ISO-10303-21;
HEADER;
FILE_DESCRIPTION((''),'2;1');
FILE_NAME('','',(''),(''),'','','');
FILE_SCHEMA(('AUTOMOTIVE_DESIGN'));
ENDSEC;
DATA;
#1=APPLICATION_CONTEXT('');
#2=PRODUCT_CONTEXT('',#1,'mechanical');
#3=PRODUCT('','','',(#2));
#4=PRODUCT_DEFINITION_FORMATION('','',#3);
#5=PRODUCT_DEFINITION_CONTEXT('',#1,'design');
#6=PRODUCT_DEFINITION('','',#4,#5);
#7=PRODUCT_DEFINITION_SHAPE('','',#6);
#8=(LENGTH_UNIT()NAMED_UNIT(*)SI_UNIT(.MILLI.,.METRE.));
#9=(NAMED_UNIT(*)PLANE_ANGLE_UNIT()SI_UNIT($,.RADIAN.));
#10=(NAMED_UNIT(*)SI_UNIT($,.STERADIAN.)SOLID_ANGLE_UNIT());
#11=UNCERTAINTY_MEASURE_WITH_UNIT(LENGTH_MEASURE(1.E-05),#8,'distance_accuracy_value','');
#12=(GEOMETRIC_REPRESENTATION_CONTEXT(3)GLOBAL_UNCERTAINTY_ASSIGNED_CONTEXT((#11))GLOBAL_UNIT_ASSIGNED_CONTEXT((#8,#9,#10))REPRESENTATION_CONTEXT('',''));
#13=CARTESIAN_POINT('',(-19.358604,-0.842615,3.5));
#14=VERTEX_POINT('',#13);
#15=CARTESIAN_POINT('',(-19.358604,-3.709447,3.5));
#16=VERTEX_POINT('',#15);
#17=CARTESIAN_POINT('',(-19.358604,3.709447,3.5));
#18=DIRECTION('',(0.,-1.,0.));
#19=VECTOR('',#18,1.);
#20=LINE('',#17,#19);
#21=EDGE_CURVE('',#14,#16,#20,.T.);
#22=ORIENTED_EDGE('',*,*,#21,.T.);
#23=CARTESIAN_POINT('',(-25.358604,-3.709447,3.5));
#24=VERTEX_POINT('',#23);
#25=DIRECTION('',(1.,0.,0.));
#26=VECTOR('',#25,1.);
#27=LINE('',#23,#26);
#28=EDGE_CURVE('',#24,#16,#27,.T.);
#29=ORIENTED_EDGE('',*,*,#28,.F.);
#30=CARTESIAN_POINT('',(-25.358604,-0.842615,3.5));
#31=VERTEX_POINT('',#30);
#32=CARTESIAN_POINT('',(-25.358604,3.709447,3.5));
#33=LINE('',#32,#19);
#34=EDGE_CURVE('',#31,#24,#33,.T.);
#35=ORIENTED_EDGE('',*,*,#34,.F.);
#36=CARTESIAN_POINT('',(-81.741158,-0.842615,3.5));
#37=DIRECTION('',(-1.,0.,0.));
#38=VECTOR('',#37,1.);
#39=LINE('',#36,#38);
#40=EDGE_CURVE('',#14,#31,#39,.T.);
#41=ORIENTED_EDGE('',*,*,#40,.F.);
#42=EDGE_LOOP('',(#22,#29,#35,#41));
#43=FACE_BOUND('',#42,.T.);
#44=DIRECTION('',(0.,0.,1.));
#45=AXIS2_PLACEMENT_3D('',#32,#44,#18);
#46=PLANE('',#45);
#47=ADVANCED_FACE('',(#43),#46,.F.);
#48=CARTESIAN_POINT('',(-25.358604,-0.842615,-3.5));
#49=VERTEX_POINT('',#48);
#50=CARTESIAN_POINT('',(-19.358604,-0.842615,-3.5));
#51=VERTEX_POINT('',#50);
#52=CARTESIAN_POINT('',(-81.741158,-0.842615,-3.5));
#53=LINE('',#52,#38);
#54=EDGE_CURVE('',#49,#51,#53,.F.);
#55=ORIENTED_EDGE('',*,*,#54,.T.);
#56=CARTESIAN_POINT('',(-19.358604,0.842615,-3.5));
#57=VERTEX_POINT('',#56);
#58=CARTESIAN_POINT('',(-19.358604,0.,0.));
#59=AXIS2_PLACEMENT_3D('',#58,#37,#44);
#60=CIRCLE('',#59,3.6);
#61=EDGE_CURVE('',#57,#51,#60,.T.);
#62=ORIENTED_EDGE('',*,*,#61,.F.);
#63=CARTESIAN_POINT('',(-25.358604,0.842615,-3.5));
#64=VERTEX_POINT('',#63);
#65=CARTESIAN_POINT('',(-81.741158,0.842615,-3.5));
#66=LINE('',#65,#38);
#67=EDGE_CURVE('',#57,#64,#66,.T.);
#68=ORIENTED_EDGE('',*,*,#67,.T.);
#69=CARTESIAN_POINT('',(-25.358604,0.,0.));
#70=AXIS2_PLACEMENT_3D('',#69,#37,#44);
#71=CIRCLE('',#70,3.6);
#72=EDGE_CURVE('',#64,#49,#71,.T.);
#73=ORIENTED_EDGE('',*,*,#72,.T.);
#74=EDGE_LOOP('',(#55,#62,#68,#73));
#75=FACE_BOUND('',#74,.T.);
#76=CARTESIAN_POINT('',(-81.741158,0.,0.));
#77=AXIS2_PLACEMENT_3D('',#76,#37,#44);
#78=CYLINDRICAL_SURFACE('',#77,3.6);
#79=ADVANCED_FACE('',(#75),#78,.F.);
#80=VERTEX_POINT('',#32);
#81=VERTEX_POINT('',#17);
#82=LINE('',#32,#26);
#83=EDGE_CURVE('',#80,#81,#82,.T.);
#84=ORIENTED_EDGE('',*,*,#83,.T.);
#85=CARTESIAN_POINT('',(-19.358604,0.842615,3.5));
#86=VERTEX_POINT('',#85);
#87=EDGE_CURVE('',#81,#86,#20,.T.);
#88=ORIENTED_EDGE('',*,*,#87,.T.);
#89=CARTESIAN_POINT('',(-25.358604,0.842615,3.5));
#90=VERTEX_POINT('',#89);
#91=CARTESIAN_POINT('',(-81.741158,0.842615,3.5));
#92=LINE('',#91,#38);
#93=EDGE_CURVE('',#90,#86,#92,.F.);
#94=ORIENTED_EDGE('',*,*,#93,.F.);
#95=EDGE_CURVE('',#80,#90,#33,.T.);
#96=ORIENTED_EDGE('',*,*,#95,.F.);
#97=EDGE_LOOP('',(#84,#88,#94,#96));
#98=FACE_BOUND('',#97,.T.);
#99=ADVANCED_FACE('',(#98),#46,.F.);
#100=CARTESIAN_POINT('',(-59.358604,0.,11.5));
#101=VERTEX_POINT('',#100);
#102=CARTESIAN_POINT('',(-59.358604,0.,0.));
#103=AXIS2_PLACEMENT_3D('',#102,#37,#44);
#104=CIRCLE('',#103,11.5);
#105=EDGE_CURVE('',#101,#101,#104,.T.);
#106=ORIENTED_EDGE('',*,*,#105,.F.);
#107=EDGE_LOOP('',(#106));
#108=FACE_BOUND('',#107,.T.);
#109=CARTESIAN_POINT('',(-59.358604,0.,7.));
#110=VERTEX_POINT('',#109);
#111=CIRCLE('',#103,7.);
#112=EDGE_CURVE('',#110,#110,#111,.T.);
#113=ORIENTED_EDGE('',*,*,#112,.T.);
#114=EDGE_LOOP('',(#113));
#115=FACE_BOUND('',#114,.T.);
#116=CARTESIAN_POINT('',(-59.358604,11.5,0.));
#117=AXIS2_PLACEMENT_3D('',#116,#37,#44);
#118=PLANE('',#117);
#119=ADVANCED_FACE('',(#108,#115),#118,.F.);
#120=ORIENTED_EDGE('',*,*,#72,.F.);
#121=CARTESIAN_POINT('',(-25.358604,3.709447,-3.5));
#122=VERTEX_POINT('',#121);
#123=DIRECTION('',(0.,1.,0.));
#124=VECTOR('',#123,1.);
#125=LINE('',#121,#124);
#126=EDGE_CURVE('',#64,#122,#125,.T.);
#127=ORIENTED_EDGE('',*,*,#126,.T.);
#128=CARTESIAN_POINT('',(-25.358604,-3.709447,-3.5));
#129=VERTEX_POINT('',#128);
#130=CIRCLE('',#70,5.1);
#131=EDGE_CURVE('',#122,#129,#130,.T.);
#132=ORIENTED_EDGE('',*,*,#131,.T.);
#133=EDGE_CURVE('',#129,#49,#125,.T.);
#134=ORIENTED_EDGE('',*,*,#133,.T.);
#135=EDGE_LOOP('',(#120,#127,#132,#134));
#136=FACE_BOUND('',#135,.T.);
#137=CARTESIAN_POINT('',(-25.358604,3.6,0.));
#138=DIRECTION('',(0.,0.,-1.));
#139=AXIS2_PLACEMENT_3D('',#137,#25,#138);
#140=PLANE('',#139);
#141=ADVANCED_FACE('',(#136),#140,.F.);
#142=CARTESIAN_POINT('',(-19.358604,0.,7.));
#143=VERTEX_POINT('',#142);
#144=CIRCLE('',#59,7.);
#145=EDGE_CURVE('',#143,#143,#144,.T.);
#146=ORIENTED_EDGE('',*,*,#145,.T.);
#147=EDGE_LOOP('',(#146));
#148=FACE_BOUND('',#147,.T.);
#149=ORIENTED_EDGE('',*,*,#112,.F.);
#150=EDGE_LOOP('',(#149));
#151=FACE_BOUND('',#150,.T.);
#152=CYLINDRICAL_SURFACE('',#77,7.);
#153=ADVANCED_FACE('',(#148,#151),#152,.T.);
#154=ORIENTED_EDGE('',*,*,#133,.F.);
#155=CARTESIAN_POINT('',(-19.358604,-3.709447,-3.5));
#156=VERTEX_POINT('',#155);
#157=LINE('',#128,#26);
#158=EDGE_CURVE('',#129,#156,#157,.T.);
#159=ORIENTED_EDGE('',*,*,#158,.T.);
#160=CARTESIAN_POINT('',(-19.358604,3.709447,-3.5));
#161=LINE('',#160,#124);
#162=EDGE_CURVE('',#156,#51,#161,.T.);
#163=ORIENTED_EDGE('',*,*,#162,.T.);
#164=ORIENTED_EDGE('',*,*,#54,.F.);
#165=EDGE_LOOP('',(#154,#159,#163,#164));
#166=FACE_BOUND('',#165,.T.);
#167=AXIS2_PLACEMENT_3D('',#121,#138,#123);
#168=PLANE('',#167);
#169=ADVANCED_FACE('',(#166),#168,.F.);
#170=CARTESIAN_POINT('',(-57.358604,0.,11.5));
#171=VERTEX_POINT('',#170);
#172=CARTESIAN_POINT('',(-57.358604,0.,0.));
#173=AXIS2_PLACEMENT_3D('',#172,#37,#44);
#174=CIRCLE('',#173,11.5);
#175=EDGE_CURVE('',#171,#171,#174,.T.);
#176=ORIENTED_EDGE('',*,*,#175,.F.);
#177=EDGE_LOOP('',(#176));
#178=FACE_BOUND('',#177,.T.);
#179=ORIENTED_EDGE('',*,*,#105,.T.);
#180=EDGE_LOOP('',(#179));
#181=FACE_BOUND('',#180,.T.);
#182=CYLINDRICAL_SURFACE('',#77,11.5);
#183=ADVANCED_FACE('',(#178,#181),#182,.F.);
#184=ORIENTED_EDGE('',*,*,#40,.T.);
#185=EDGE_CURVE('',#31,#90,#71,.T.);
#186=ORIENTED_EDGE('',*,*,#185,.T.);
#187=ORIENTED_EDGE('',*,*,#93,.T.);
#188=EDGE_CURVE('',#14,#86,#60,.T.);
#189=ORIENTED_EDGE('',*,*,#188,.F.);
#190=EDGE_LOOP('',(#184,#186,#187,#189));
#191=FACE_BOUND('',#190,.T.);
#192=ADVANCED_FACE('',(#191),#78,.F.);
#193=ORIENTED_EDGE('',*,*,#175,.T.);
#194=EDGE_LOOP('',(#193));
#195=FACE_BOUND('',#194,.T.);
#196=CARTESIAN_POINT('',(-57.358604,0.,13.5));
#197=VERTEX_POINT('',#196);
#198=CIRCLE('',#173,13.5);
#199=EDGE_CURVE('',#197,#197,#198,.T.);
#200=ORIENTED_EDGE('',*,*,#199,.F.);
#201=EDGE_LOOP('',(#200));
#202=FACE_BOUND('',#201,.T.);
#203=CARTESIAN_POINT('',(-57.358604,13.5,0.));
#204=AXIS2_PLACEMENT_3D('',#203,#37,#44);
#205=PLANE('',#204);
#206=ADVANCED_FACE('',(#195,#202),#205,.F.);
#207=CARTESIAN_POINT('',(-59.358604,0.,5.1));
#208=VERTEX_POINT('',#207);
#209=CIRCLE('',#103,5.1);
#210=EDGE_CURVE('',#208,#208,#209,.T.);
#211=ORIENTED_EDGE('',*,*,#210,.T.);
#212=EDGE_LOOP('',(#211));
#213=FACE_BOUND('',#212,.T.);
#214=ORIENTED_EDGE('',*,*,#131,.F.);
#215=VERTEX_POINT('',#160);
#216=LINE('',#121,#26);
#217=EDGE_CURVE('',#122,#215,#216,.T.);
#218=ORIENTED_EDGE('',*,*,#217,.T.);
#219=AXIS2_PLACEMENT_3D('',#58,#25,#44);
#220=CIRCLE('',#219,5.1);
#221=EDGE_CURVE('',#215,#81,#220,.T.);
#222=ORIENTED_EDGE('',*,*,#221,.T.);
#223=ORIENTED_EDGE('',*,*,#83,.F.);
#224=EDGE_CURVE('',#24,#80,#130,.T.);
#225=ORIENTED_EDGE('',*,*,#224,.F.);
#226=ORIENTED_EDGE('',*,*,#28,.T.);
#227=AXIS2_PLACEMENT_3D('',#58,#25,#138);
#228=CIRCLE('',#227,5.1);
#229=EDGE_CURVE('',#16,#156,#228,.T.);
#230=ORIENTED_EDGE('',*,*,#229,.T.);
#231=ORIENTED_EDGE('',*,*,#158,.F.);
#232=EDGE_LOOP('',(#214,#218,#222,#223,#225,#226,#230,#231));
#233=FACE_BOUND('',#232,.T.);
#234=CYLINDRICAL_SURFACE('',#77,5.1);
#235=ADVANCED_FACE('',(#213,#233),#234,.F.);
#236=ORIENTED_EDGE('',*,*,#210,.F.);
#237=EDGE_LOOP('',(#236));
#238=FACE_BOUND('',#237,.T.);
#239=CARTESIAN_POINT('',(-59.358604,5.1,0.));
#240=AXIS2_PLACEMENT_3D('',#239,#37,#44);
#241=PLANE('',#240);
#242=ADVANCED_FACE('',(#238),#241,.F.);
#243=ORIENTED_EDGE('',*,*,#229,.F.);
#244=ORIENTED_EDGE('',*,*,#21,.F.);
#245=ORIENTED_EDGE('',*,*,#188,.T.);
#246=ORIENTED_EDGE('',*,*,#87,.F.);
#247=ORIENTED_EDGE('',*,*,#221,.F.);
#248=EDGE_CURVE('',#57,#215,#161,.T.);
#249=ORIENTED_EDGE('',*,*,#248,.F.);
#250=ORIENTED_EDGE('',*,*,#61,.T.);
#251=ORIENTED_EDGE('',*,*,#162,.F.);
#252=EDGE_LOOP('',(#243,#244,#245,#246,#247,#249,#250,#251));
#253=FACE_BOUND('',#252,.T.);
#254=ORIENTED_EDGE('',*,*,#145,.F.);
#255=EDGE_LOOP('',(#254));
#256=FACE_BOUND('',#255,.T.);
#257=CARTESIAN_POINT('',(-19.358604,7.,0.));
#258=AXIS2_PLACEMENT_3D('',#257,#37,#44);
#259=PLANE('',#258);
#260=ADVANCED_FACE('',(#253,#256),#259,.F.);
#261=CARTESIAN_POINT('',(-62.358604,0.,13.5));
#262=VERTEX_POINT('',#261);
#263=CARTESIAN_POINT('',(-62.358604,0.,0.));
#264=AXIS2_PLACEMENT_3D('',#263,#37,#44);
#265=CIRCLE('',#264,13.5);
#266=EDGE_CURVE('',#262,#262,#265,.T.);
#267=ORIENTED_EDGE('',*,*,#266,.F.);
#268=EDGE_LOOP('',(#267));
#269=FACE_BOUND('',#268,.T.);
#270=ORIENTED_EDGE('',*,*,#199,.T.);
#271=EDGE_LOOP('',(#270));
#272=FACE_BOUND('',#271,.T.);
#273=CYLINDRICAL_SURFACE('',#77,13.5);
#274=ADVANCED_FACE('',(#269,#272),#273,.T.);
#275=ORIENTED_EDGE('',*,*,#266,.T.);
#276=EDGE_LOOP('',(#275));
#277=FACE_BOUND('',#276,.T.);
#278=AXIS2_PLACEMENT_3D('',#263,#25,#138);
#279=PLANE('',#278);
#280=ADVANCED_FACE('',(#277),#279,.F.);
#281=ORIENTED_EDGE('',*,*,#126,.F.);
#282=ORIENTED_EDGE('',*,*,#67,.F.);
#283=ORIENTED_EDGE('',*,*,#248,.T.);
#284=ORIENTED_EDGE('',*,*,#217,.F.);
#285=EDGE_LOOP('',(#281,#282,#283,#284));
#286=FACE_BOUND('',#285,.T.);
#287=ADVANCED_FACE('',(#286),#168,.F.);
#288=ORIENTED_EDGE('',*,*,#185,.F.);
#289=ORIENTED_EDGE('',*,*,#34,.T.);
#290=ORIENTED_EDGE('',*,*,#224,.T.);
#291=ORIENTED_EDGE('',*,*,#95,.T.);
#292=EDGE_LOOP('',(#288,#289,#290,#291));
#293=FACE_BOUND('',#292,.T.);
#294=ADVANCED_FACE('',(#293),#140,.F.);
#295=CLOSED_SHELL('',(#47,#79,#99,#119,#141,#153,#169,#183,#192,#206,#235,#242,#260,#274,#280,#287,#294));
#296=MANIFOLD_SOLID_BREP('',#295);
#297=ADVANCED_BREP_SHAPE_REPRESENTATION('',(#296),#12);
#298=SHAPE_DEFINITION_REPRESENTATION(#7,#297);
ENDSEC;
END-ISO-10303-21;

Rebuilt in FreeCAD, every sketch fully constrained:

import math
import FreeCAD as App
import Part
import Sketcher
from FreeCAD import Vector

doc = App.newDocument("Part")
body = doc.addObject("PartDesign::Body", "Body")

sketch1 = body.newObject("Sketcher::SketchObject", "Sketch")
sketch1.AttachmentSupport = (doc.getObject("XY_Plane"), [""])
sketch1.MapMode = "FlatFace"
sketch1.addGeometry(Part.LineSegment(Vector(-62.358604, 0, 0), Vector(-59.358604, 0, 0)), False)
sketch1.addGeometry(Part.LineSegment(Vector(-59.358604, 0, 0), Vector(-59.358604, 5.1, 0)), False)
sketch1.addGeometry(Part.LineSegment(Vector(-59.358604, 5.1, 0), Vector(-25.358604, 5.1, 0)), False)
sketch1.addGeometry(Part.LineSegment(Vector(-25.358604, 5.1, 0), Vector(-25.358604, 3.6, 0)), False)
sketch1.addGeometry(Part.LineSegment(Vector(-25.358604, 3.6, 0), Vector(-19.358604, 3.6, 0)), False)
sketch1.addGeometry(Part.LineSegment(Vector(-19.358604, 3.6, 0), Vector(-19.358604, 7, 0)), False)
sketch1.addGeometry(Part.LineSegment(Vector(-19.358604, 7, 0), Vector(-59.358604, 7, 0)), False)
sketch1.addGeometry(Part.LineSegment(Vector(-59.358604, 7, 0), Vector(-59.358604, 11.5, 0)), False)
sketch1.addGeometry(Part.LineSegment(Vector(-59.358604, 11.5, 0), Vector(-57.358604, 11.5, 0)), False)
sketch1.addGeometry(Part.LineSegment(Vector(-57.358604, 11.5, 0), Vector(-57.358604, 13.5, 0)), False)
sketch1.addGeometry(Part.LineSegment(Vector(-57.358604, 13.5, 0), Vector(-62.358604, 13.5, 0)), False)
sketch1.addGeometry(Part.LineSegment(Vector(-62.358604, 13.5, 0), Vector(-62.358604, 0, 0)), False)
sketch1.addConstraint(Sketcher.Constraint("Coincident", 0, 2, 1, 1))
sketch1.addConstraint(Sketcher.Constraint("Coincident", 1, 2, 2, 1))
sketch1.addConstraint(Sketcher.Constraint("Coincident", 2, 2, 3, 1))
sketch1.addConstraint(Sketcher.Constraint("Coincident", 3, 2, 4, 1))
sketch1.addConstraint(Sketcher.Constraint("Coincident", 4, 2, 5, 1))
sketch1.addConstraint(Sketcher.Constraint("Coincident", 5, 2, 6, 1))
sketch1.addConstraint(Sketcher.Constraint("Coincident", 6, 2, 7, 1))
sketch1.addConstraint(Sketcher.Constraint("Coincident", 7, 2, 8, 1))
sketch1.addConstraint(Sketcher.Constraint("Coincident", 8, 2, 9, 1))
sketch1.addConstraint(Sketcher.Constraint("Coincident", 9, 2, 10, 1))
sketch1.addConstraint(Sketcher.Constraint("Coincident", 10, 2, 11, 1))
sketch1.addConstraint(Sketcher.Constraint("Coincident", 11, 2, 0, 1))
sketch1.addConstraint(Sketcher.Constraint("Horizontal", 0))
sketch1.addConstraint(Sketcher.Constraint("Vertical", 1))
sketch1.addConstraint(Sketcher.Constraint("Horizontal", 2))
sketch1.addConstraint(Sketcher.Constraint("Vertical", 3))
sketch1.addConstraint(Sketcher.Constraint("Horizontal", 4))
sketch1.addConstraint(Sketcher.Constraint("Vertical", 5))
sketch1.addConstraint(Sketcher.Constraint("Horizontal", 6))
sketch1.addConstraint(Sketcher.Constraint("Vertical", 7))
sketch1.addConstraint(Sketcher.Constraint("Horizontal", 8))
sketch1.addConstraint(Sketcher.Constraint("Vertical", 9))
sketch1.addConstraint(Sketcher.Constraint("Horizontal", 10))
sketch1.addConstraint(Sketcher.Constraint("Vertical", 11))
sketch1.addConstraint(Sketcher.Constraint("PointOnObject", 0, 2, -1))
sketch1.addConstraint(Sketcher.Constraint("Vertical", 1, 2, 6, 2))
sketch1.addConstraint(Sketcher.Constraint("Equal", 8, 9))
sketch1.addConstraint(Sketcher.Constraint("DistanceX", 0, 1, 0, 2, 3.0))
sketch1.addConstraint(Sketcher.Constraint("DistanceX", 2, 1, 2, 2, 34.0))
sketch1.addConstraint(Sketcher.Constraint("DistanceX", 4, 1, 4, 2, 6.0))
sketch1.addConstraint(Sketcher.Constraint("DistanceX", 8, 1, 8, 2, 2.0))
sketch1.addConstraint(Sketcher.Constraint("DistanceY", 1, 1, 1, 2, 5.1))
sketch1.addConstraint(Sketcher.Constraint("DistanceY", 3, 2, 3, 1, 1.5))
sketch1.addConstraint(Sketcher.Constraint("DistanceY", 5, 1, 5, 2, 3.4))
sketch1.addConstraint(Sketcher.Constraint("DistanceY", 7, 1, 7, 2, 4.5))
sketch1.addConstraint(Sketcher.Constraint("DistanceX", 0, 2, -1, 1, 59.358604))
revolution = body.newObject("PartDesign::Revolution", "Revolution")
revolution.Profile = sketch1
revolution.ReferenceAxis = (sketch1, ["H_Axis"])
revolution.Angle = 360

sketch2 = body.newObject("Sketcher::SketchObject", "Sketch001")
sketch2.AttachmentSupport = (doc.getObject("YZ_Plane"), [""])
sketch2.MapMode = "FlatFace"
sketch2.AttachmentOffset = App.Placement(Vector(0, 0, -25.358604), App.Rotation())
sketch2.addGeometry(Part.LineSegment(Vector(3.709447, 3.5, 0), Vector(-3.709447, 3.5, 0)), False)
sketch2.addGeometry(Part.ArcOfCircle(Part.Circle(Vector(0, 0, 0), Vector(0, 0, 1), 5.1), math.radians(136.664077), math.radians(223.335923)), False)
sketch2.addGeometry(Part.LineSegment(Vector(-3.709447, -3.5, 0), Vector(3.709447, -3.5, 0)), False)
sketch2.addGeometry(Part.ArcOfCircle(Part.Circle(Vector(0, 0, 0), Vector(0, 0, 1), 5.1), math.radians(-43.335923), math.radians(43.335923)), False)
sketch2.addConstraint(Sketcher.Constraint("Coincident", 0, 2, 1, 1))
sketch2.addConstraint(Sketcher.Constraint("Coincident", 1, 2, 2, 1))
sketch2.addConstraint(Sketcher.Constraint("Coincident", 2, 2, 3, 1))
sketch2.addConstraint(Sketcher.Constraint("Coincident", 3, 2, 0, 1))
sketch2.addConstraint(Sketcher.Constraint("Horizontal", 0))
sketch2.addConstraint(Sketcher.Constraint("Horizontal", 2))
sketch2.addConstraint(Sketcher.Constraint("Coincident", 1, 3, -1, 1))
sketch2.addConstraint(Sketcher.Constraint("Coincident", 3, 3, -1, 1))
sketch2.addConstraint(Sketcher.Constraint("Equal", 1, 3))
sketch2.addConstraint(Sketcher.Constraint("Vertical", 0, 2, 1, 2))
sketch2.addConstraint(Sketcher.Constraint("Radius", 1, 5.1))
sketch2.addConstraint(Sketcher.Constraint("DistanceY", 1, 2, 0, 2, 7.0))
pocket1 = body.newObject("PartDesign::Pocket", "Pocket")
pocket1.Profile = sketch2
pocket1.Length = 6
pocket1.Reversed = True

doc.recompute()
